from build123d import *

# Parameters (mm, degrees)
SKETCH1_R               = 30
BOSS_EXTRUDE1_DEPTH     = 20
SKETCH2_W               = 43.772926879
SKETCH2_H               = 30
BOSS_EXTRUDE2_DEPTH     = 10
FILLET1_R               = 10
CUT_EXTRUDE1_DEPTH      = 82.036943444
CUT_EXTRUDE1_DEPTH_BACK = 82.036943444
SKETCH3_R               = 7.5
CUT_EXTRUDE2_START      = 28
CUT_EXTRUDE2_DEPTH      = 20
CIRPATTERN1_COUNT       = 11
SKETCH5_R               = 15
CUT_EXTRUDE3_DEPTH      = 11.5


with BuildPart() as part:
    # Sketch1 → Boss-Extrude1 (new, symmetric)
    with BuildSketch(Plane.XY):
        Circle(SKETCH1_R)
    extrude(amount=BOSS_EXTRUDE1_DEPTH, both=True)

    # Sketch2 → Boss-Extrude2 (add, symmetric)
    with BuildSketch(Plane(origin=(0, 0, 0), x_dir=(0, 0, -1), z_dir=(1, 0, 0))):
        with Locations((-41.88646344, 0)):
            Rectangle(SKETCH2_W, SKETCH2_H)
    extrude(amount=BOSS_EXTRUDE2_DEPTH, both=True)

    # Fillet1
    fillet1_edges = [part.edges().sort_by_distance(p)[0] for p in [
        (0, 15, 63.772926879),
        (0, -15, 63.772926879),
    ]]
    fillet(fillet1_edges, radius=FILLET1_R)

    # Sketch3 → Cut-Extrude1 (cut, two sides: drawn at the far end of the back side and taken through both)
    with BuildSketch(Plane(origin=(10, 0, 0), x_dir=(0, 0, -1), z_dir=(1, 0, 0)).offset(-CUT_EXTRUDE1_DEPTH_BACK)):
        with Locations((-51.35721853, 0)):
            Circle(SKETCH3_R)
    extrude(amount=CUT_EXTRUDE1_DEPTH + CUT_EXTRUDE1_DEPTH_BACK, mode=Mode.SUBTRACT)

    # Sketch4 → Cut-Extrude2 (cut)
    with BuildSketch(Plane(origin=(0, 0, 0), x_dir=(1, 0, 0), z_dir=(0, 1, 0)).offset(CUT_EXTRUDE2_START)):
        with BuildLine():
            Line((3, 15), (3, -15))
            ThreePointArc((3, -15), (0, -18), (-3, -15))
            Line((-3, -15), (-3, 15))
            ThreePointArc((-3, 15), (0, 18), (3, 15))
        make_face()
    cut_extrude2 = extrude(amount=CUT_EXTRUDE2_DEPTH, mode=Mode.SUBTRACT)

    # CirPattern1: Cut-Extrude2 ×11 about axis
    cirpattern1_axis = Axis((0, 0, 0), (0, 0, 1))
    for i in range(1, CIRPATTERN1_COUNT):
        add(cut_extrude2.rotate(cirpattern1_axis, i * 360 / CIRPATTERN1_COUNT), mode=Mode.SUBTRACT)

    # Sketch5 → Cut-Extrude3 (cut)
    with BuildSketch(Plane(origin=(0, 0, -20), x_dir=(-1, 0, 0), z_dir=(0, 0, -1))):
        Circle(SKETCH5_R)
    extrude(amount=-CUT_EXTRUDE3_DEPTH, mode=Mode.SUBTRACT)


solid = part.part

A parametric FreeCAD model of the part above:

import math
import FreeCAD as App
import Part
import Sketcher


def edges_at(feature, points):
    """Names of the edges that pass closest to the given points."""
    edges = feature.Shape.Edges
    near = lambda p: min(range(len(edges)), key=lambda i: edges[i].distToShape(Part.Vertex(*p))[0])
    return sorted({f"Edge{near(p) + 1}" for p in points})

doc = App.newDocument("Part")
params = doc.addObject("Spreadsheet::Sheet", "Params")
for row, (alias, value) in enumerate([
    ("sketch1_diameter", "60 mm"),
    ("pad1_length", "40 mm"),
    ("sketch2_width", "30 mm"),
    ("pad2_length", "20 mm"),
    ("fillet_radius", "10 mm"),
    ("sketch3_diameter", "15 mm"),
    ("sketch4_radius", "3 mm"),
    ("sketch4_height", "30 mm"),
    ("pocket2_length", "20 mm"),
    ("sketch5_diameter", "30 mm"),
    ("pocket3_length", "11.5 mm"),
], start=1):
    params.set(f"A{row}", alias)
    params.set(f"B{row}", "=" + value)
    params.setAlias(f"B{row}", alias)

body = doc.addObject("PartDesign::Body", "Body")

# Sketch on XY plane
sketch1 = body.newObject("Sketcher::SketchObject", "Sketch")
sketch1.AttachmentSupport = (doc.getObject("XY_Plane"), [""])
sketch1.MapMode = "FlatFace"
sketch1.addGeometry(Part.Circle(App.Vector(0, 0, 0), App.Vector(0, 0, 1), 30), False)
sketch1.addConstraint([
    Sketcher.Constraint("Coincident", 0, 3, -1, 1),
    Sketcher.Constraint("Diameter", 0, 60.0),
])
sketch1.setExpression("Constraints[1]", "Params.sketch1_diameter")
pad1 = body.newObject("PartDesign::Pad", "Pad")
pad1.Profile = sketch1
pad1.setExpression("Length", "Params.pad1_length")
pad1.Midplane = True

# Sketch on YZ plane
sketch2 = body.newObject("Sketcher::SketchObject", "Sketch001")
sketch2.AttachmentSupport = (doc.getObject("YZ_Plane"), [""])
sketch2.MapMode = "FlatFace"
sketch2.addGeometry([
    Part.LineSegment(App.Vector(15, 64, 0), App.Vector(-15, 64, 0)),
    Part.LineSegment(App.Vector(-15, 64, 0), App.Vector(-15, 20, 0)),
    Part.LineSegment(App.Vector(-15, 20, 0), App.Vector(15, 20, 0)),
    Part.LineSegment(App.Vector(15, 20, 0), App.Vector(15, 64, 0)),
], False)
sketch2.addConstraint([
    Sketcher.Constraint("Coincident", 0, 2, 1, 1),
    Sketcher.Constraint("Coincident", 1, 2, 2, 1),
    Sketcher.Constraint("Coincident", 2, 2, 3, 1),
    Sketcher.Constraint("Coincident", 3, 2, 0, 1),
    Sketcher.Constraint("Horizontal", 0),
    Sketcher.Constraint("Vertical", 1),
    Sketcher.Constraint("Horizontal", 2),
    Sketcher.Constraint("Vertical", 3),
    Sketcher.Constraint("DistanceX", 0, 2, 0, 1, 30.0),
    Sketcher.Constraint("DistanceX", 0, 2, -1, 1, 15.0),
    Sketcher.Constraint("DistanceY", -1, 1, 1, 2, 20.0),
    Sketcher.Constraint("DistanceY", 1, 2, 1, 1, 43.772927),
])
sketch2.setExpression("Constraints[8]", "Params.sketch2_width")
pad2 = body.newObject("PartDesign::Pad", "Pad001")
pad2.Profile = sketch2
pad2.setExpression("Length", "Params.pad2_length")
pad2.Midplane = True
doc.recompute()

fillet = body.newObject("PartDesign::Fillet", "Fillet")
fillet.Base = (pad2, edges_at(pad2, [(0, 15, 63.773), (0, -15, 63.773)]))
fillet.setExpression("Radius", "Params.fillet_radius")

# Sketch on YZ plane
sketch3 = body.newObject("Sketcher::SketchObject", "Sketch002")
sketch3.AttachmentSupport = (doc.getObject("YZ_Plane"), [""])
sketch3.MapMode = "FlatFace"
sketch3.AttachmentOffset = App.Placement(App.Vector(0, 0, 10), App.Rotation())
sketch3.addGeometry(Part.Circle(App.Vector(0, 51, 0), App.Vector(0, 0, 1), 8), False)
sketch3.addConstraint([
    Sketcher.Constraint("PointOnObject", 0, 3, -2),
    Sketcher.Constraint("Diameter", 0, 15.0),
    Sketcher.Constraint("DistanceY", -1, 1, 0, 3, 51.357219),
])
sketch3.setExpression("Constraints[1]", "Params.sketch3_diameter")
pocket1 = body.newObject("PartDesign::Pocket", "Pocket")
pocket1.Profile = sketch3
pocket1.Type = "ThroughAll"
pocket1.Midplane = True

# Sketch on XZ plane
sketch4 = body.newObject("Sketcher::SketchObject", "Sketch003")
sketch4.AttachmentSupport = (doc.getObject("XZ_Plane"), [""])
sketch4.MapMode = "FlatFace"
sketch4.AttachmentOffset = App.Placement(App.Vector(0, 0, -28), App.Rotation())
sketch4.addGeometry([
    Part.LineSegment(App.Vector(3, 15, 0), App.Vector(3, -15, 0)),
    Part.ArcOfCircle(Part.Circle(App.Vector(0, -15, 0), App.Vector(0, 0, 1), 3), math.radians(180), math.radians(360)),
    Part.LineSegment(App.Vector(-3, -15, 0), App.Vector(-3, 15, 0)),
    Part.ArcOfCircle(Part.Circle(App.Vector(0, 15, 0), App.Vector(0, 0, 1), 3), math.radians(0), math.radians(180)),
], False)
sketch4.addConstraint([
    Sketcher.Constraint("Tangent", 0, 2, 1, 2),
    Sketcher.Constraint("Tangent", 1, 1, 2, 1),
    Sketcher.Constraint("Tangent", 2, 2, 3, 2),
    Sketcher.Constraint("Tangent", 3, 1, 0, 1),
    Sketcher.Constraint("Vertical", 0),
    Sketcher.Constraint("Vertical", 2),
    Sketcher.Constraint("Symmetric", 1, 3, 3, 3, -1, 1),
    Sketcher.Constraint("Radius", 1, 3.0),
    Sketcher.Constraint("DistanceY", 0, 2, 0, 1, 30.0),
])
sketch4.setExpression("Constraints[7]", "Params.sketch4_radius")
sketch4.setExpression("Constraints[8]", "Params.sketch4_height")
pocket2 = body.newObject("PartDesign::Pocket", "Pocket001")
pocket2.Profile = sketch4
pocket2.setExpression("Length", "Params.pocket2_length")
doc.recompute()

polarpattern = body.newObject("PartDesign::PolarPattern", "PolarPattern")
polarpattern.Originals = [pocket2]
polarpattern.Axis = (doc.getObject("Z_Axis"), [""])
polarpattern.Angle = 360
polarpattern.Occurrences = 11
body.Tip = polarpattern

# Sketch on XY plane
sketch5 = body.newObject("Sketcher::SketchObject", "Sketch004")
sketch5.AttachmentSupport = (doc.getObject("XY_Plane"), [""])
sketch5.MapMode = "FlatFace"
sketch5.AttachmentOffset = App.Placement(App.Vector(0, 0, -20), App.Rotation())
sketch5.addGeometry(Part.Circle(App.Vector(0, 0, 0), App.Vector(0, 0, 1), 15), False)
sketch5.addConstraint([
    Sketcher.Constraint("Coincident", 0, 3, -1, 1),
    Sketcher.Constraint("Diameter", 0, 30.0),
])
sketch5.setExpression("Constraints[1]", "Params.sketch5_diameter")
pocket3 = body.newObject("PartDesign::Pocket", "Pocket002")
pocket3.Profile = sketch5
pocket3.setExpression("Length", "Params.pocket3_length")
pocket3.Reversed = True

doc.recompute()
